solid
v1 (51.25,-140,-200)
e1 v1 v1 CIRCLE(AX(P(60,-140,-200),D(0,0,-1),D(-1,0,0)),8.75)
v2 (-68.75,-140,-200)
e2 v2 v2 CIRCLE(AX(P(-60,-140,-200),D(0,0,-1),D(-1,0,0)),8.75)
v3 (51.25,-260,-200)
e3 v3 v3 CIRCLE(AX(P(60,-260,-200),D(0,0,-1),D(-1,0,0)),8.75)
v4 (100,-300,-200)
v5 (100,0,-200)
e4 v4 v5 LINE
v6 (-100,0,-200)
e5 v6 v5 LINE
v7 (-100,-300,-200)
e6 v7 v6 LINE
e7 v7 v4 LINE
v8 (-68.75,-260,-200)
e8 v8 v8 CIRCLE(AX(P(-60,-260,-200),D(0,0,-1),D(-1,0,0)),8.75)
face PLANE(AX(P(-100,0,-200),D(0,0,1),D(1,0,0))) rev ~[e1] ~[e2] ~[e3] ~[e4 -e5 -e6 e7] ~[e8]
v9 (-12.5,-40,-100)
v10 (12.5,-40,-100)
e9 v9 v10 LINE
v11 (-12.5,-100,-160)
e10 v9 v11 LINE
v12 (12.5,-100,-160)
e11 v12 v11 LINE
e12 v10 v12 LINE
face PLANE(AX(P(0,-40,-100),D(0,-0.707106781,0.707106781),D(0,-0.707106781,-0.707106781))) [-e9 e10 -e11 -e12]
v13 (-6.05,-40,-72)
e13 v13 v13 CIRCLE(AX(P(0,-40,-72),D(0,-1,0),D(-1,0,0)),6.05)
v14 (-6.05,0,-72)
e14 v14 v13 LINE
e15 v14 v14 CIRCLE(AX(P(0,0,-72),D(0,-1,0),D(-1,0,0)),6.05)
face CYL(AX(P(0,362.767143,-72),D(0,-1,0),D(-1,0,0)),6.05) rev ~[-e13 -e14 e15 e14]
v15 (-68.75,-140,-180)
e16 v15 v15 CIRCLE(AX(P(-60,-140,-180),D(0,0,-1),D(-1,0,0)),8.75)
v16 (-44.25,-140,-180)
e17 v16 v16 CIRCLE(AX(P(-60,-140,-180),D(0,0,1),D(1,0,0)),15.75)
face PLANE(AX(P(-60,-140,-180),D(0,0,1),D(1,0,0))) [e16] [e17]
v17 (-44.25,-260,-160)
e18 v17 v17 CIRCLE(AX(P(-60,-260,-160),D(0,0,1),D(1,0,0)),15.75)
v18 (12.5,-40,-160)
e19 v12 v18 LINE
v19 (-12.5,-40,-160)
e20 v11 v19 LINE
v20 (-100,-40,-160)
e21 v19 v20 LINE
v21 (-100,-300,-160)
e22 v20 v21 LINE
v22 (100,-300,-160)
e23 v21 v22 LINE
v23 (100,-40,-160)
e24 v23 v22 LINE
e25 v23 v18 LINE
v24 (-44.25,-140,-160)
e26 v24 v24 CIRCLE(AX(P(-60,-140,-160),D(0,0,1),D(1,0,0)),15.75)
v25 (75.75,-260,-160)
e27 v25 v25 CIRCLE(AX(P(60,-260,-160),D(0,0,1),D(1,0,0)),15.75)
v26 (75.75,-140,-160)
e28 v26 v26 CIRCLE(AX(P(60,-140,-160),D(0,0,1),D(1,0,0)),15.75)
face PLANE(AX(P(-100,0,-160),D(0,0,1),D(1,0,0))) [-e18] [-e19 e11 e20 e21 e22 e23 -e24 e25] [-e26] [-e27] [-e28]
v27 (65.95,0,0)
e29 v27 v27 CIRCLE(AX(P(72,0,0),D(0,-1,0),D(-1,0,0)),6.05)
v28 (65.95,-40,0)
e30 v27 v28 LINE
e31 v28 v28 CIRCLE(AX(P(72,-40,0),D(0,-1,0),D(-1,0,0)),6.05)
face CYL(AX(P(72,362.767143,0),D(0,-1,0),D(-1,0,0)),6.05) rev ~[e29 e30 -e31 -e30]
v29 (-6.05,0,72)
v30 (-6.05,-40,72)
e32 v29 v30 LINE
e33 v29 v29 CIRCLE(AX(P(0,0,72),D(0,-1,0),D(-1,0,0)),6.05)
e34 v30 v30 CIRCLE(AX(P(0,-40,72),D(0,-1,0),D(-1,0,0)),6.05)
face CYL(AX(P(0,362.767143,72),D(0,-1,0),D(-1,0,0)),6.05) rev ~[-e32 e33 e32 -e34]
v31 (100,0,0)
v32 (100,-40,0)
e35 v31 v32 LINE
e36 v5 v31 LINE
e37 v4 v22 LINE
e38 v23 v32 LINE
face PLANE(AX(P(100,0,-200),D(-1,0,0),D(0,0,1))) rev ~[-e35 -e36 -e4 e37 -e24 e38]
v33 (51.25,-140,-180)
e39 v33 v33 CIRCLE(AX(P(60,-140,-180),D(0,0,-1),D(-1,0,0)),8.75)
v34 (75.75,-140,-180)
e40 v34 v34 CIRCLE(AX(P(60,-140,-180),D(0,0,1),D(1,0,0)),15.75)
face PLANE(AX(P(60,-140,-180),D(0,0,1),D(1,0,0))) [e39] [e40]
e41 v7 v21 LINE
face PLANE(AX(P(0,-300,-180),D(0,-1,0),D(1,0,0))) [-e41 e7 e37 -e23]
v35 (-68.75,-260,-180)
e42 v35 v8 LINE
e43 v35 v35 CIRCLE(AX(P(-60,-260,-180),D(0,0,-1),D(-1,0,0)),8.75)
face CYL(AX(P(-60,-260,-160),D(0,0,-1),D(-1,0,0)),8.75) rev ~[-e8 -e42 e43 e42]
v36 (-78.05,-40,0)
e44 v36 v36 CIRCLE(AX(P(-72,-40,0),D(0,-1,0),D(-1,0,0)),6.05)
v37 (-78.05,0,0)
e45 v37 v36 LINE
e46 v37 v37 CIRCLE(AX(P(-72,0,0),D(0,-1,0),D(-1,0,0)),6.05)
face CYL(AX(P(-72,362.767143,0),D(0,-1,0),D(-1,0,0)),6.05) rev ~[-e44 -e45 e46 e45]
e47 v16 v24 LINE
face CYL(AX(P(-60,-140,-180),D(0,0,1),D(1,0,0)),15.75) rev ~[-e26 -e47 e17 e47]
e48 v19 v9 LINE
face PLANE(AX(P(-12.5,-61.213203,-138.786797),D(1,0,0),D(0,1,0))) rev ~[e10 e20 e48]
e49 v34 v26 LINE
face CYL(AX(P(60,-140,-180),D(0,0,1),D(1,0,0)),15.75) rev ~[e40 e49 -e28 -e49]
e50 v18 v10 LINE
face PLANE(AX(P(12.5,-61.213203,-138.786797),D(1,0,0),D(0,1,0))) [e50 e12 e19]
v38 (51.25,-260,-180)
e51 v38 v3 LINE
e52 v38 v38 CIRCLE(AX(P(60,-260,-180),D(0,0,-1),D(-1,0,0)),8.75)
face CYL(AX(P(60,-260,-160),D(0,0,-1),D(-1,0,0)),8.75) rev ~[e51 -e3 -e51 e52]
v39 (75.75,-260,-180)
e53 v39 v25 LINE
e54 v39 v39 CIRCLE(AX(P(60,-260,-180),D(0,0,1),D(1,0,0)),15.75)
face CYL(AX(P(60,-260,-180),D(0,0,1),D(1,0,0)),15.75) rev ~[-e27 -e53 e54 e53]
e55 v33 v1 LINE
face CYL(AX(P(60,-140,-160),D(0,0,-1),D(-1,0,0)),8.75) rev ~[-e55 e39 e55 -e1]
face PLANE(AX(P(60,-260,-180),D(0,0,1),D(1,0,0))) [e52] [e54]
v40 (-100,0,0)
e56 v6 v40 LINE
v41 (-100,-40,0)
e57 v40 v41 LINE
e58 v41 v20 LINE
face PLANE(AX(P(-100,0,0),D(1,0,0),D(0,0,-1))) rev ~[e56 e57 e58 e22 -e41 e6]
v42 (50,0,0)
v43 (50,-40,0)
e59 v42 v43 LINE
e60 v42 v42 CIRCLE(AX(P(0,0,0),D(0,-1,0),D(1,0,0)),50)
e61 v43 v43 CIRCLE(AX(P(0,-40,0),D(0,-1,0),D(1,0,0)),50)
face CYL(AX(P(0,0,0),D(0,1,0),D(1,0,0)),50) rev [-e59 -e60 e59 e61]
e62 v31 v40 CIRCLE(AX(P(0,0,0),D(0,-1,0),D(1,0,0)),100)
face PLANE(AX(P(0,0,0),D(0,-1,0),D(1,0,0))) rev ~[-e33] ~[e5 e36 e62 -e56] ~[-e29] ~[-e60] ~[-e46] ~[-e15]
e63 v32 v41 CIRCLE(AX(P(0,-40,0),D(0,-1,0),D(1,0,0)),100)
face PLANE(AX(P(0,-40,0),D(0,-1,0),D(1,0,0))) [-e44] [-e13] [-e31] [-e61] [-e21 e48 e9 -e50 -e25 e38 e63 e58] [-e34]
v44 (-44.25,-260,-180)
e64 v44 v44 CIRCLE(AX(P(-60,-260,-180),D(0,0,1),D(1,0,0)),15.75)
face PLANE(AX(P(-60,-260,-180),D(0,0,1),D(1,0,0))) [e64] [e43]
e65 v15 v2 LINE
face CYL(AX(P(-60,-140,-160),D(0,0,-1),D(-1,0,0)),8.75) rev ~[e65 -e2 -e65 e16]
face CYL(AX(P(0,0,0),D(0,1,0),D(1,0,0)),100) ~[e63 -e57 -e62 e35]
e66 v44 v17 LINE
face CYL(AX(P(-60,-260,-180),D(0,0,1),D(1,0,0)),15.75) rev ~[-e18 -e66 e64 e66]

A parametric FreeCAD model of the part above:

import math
import FreeCAD as App
import Part
import Sketcher
from FreeCAD import Vector


def add_polygon(sketch, points):
    """Adds a closed chain of lines whose ends are joined by coincident constraints."""
    first, n = sketch.GeometryCount, len(points)
    for a, b in zip(points, points[1:] + points[:1]):
        sketch.addGeometry(Part.LineSegment(App.Vector(*a, 0), App.Vector(*b, 0)), False)
    for i in range(n):
        sketch.addConstraint(Sketcher.Constraint("Coincident", first + i, 2, first + (i + 1) % n, 1))

doc = App.newDocument("Part")
body = doc.addObject("PartDesign::Body", "Body")

sketch1 = body.newObject("Sketcher::SketchObject", "Sketch")
sketch1.AttachmentSupport = (doc.getObject("XZ_Plane"), [""])
sketch1.MapMode = "FlatFace"
sketch1.addGeometry(Part.ArcOfCircle(Part.Circle(Vector(0, 0, 0), Vector(0, 0, 1), 100), math.radians(0), math.radians(180)), False)
sketch1.addGeometry(Part.LineSegment(Vector(-100, 0, 0), Vector(-100, -200, 0)), False)
sketch1.addGeometry(Part.LineSegment(Vector(-100, -200, 0), Vector(100, -200, 0)), False)
sketch1.addGeometry(Part.LineSegment(Vector(100, -200, 0), Vector(100, 0, 0)), False)
sketch1.addGeometry(Part.Circle(Vector(0, 0, 0), Vector(0, 0, 1), 50), False)
sketch1.addConstraint(Sketcher.Constraint("Tangent", 0, 2, 1, 1))
sketch1.addConstraint(Sketcher.Constraint("Coincident", 1, 2, 2, 1))
sketch1.addConstraint(Sketcher.Constraint("Coincident", 2, 2, 3, 1))
sketch1.addConstraint(Sketcher.Constraint("Tangent", 3, 2, 0, 1))
sketch1.addConstraint(Sketcher.Constraint("Vertical", 1))
sketch1.addConstraint(Sketcher.Constraint("Horizontal", 2))
sketch1.addConstraint(Sketcher.Constraint("Vertical", 3))
sketch1.addConstraint(Sketcher.Constraint("Coincident", 0, 3, -1, 1))
sketch1.addConstraint(Sketcher.Constraint("Coincident", 4, 3, -1, 1))
sketch1.addConstraint(Sketcher.Constraint("Equal", 2, 1))
sketch1.addConstraint(Sketcher.Constraint("Diameter", 4, 100.0))
sketch1.addConstraint(Sketcher.Constraint("Radius", 0, 100.0))
pad1 = body.newObject("PartDesign::Pad", "Pad")
pad1.Profile = sketch1
pad1.Length = 40

sketch2 = body.newObject("Sketcher::SketchObject", "Sketch001")
sketch2.AttachmentSupport = (doc.getObject("XZ_Plane"), [""])
sketch2.MapMode = "FlatFace"
sketch2.addGeometry(Part.Circle(Vector(-72, 0, 0), Vector(0, 0, 1), 6), False)
sketch2.addGeometry(Part.Circle(Vector(0, -72, 0), Vector(0, 0, 1), 6), False)
sketch2.addGeometry(Part.Circle(Vector(72, 0, 0), Vector(0, 0, 1), 6), False)
sketch2.addGeometry(Part.Circle(Vector(0, 72, 0), Vector(0, 0, 1), 6), False)
sketch2.addConstraint(Sketcher.Constraint("Equal", 0, 1))
sketch2.addConstraint(Sketcher.Constraint("Equal", 1, 2))
sketch2.addConstraint(Sketcher.Constraint("Equal", 2, 3))
sketch2.addConstraint(Sketcher.Constraint("Symmetric", 0, 3, 2, 3, -1, 1))
sketch2.addConstraint(Sketcher.Constraint("Symmetric", 1, 3, 3, 3, -1, 1))
sketch2.addConstraint(Sketcher.Constraint("PointOnObject", 0, 3, -1))
sketch2.addConstraint(Sketcher.Constraint("PointOnObject", 1, 3, -2))
sketch2.addConstraint(Sketcher.Constraint("Diameter", 0, 12.1))
sketch2.addConstraint(Sketcher.Constraint("DistanceX", 0, 3, -1, 1, 72.0))
sketch2.addConstraint(Sketcher.Constraint("DistanceY", 1, 3, -1, 1, 72.0))
doc.recompute()
hole = body.newObject("PartDesign::Hole", "Hole")
hole.Profile = sketch2
hole.ThreadType = "None"
hole.Diameter = 12.1
hole.DepthType = "ThroughAll"
hole.Reversed = True

sketch3 = body.newObject("Sketcher::SketchObject", "Sketch002")
sketch3.AttachmentSupport = (doc.getObject("XZ_Plane"), [""])
sketch3.MapMode = "FlatFace"
add_polygon(sketch3, [(-100, -160), (-100, -200), (100, -200), (100, -160)])
sketch3.addConstraint(Sketcher.Constraint("Vertical", 0))
sketch3.addConstraint(Sketcher.Constraint("Horizontal", 1))
sketch3.addConstraint(Sketcher.Constraint("Vertical", 2))
sketch3.addConstraint(Sketcher.Constraint("Horizontal", 3))
sketch3.addConstraint(Sketcher.Constraint("DistanceX", 1, 1, 1, 2, 200.0))
sketch3.addConstraint(Sketcher.Constraint("DistanceY", 0, 2, 0, 1, 40.0))
sketch3.addConstraint(Sketcher.Constraint("DistanceX", 0, 2, -1, 1, 100.0))
sketch3.addConstraint(Sketcher.Constraint("DistanceY", 0, 2, -1, 1, 200.0))
pad2 = body.newObject("PartDesign::Pad", "Pad001")
pad2.Profile = sketch3
pad2.Length = 300

sketch4 = body.newObject("Sketcher::SketchObject", "Sketch003")
sketch4.AttachmentSupport = (doc.getObject("XY_Plane"), [""])
sketch4.MapMode = "FlatFace"
sketch4.AttachmentOffset = App.Placement(Vector(0, 0, -160), App.Rotation())
sketch4.addGeometry(Part.Circle(Vector(60, -260, 0), Vector(0, 0, 1), 9), False)
sketch4.addGeometry(Part.Circle(Vector(-60, -260, 0), Vector(0, 0, 1), 9), False)
sketch4.addGeometry(Part.Circle(Vector(60, -140, 0), Vector(0, 0, 1), 9), False)
sketch4.addGeometry(Part.Circle(Vector(-60, -140, 0), Vector(0, 0, 1), 9), False)
sketch4.addConstraint(Sketcher.Constraint("Equal", 0, 1))
sketch4.addConstraint(Sketcher.Constraint("Equal", 1, 2))
sketch4.addConstraint(Sketcher.Constraint("Equal", 2, 3))
sketch4.addConstraint(Sketcher.Constraint("Symmetric", 0, 3, 1, 3, -2))
sketch4.addConstraint(Sketcher.Constraint("Symmetric", 2, 3, 3, 3, -2))
sketch4.addConstraint(Sketcher.Constraint("Vertical", 0, 3, 2, 3))
sketch4.addConstraint(Sketcher.Constraint("Diameter", 0, 17.5))
sketch4.addConstraint(Sketcher.Constraint("DistanceX", -1, 1, 0, 3, 60.0))
sketch4.addConstraint(Sketcher.Constraint("DistanceY", 0, 3, -1, 1, 260.0))
sketch4.addConstraint(Sketcher.Constraint("DistanceY", 2, 3, -1, 1, 140.0))
doc.recompute()
hole2 = body.newObject("PartDesign::Hole", "Hole001")
hole2.Profile = sketch4
hole2.ThreadType = "None"
hole2.Diameter = 17.5
hole2.DepthType = "ThroughAll"
hole2.HoleCutType = "Counterbore"
hole2.HoleCutDiameter = 31.5
hole2.HoleCutDepth = 20

sketch5 = body.newObject("Sketcher::SketchObject", "Sketch004")
sketch5.AttachmentSupport = (doc.getObject("YZ_Plane"), [""])
sketch5.MapMode = "FlatFace"
add_polygon(sketch5, [(-40, -160), (-40, -100), (-100, -160)])
sketch5.addConstraint(Sketcher.Constraint("Vertical", 0))
sketch5.addConstraint(Sketcher.Constraint("Horizontal", 2))
sketch5.addConstraint(Sketcher.Constraint("Equal", 2, 0))
sketch5.addConstraint(Sketcher.Constraint("DistanceX", 2, 1, 2, 2, 60.0))
sketch5.addConstraint(Sketcher.Constraint("DistanceX", 0, 2, -1, 1, 40.0))
sketch5.addConstraint(Sketcher.Constraint("DistanceY", 0, 2, -1, 1, 100.0))
pad3 = body.newObject("PartDesign::Pad", "Pad002")
pad3.Profile = sketch5
pad3.Length = 25
pad3.Midplane = True

doc.recompute()
